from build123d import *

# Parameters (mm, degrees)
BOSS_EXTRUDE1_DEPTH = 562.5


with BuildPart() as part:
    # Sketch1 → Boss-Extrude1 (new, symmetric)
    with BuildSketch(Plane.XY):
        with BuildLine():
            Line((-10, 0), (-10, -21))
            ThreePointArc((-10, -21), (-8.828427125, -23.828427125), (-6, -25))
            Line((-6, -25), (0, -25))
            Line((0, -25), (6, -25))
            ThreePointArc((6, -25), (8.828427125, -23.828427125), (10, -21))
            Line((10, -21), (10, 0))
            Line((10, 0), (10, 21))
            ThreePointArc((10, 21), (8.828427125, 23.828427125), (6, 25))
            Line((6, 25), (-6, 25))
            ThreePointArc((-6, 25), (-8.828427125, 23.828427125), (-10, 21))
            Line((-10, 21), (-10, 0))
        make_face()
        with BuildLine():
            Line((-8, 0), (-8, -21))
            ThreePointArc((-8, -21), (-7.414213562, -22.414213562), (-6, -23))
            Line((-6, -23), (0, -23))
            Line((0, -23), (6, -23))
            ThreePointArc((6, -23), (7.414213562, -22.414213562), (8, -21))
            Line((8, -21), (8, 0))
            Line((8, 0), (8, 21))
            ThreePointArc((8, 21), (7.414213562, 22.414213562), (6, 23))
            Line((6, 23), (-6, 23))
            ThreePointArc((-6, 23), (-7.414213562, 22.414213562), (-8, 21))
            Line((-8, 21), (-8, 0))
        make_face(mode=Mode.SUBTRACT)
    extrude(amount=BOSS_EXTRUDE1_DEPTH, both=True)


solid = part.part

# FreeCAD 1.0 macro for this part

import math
import FreeCAD as App
import Part
import Sketcher

V = App.Vector

doc = App.newDocument("Part")
body = doc.addObject("PartDesign::Body", "Body")

# Sketch on XY plane
sketch1 = doc.addObject("Sketcher::SketchObject", "Sketch")
body.addObject(sketch1)
sketch1.AttachmentSupport = (doc.XY_Plane, [""])
sketch1.MapMode = "FlatFace"
sketch1.addGeometry([
    Part.ArcOfCircle(Part.Circle(V(-6, -21, 0), V(0, 0, 1), 4), math.radians(180), math.radians(270)),  # 0
    Part.LineSegment(V(-6, -25, 0), V(6, -25, 0)),  # 1
    Part.ArcOfCircle(Part.Circle(V(6, -21, 0), V(0, 0, 1), 4), math.radians(-90), math.radians(0)),  # 2
    Part.LineSegment(V(10, -21, 0), V(10, 21, 0)),  # 3
    Part.ArcOfCircle(Part.Circle(V(6, 21, 0), V(0, 0, 1), 4), math.radians(0), math.radians(90)),  # 4
    Part.LineSegment(V(6, 25, 0), V(-6, 25, 0)),  # 5
    Part.ArcOfCircle(Part.Circle(V(-6, 21, 0), V(0, 0, 1), 4), math.radians(90), math.radians(180)),  # 6
    Part.LineSegment(V(-10, 21, 0), V(-10, -21, 0)),  # 7
    Part.ArcOfCircle(Part.Circle(V(-6, -21, 0), V(0, 0, 1), 2), math.radians(-180), math.radians(-90)),  # 8
    Part.LineSegment(V(-8, -21, 0), V(-8, 21, 0)),  # 9
    Part.ArcOfCircle(Part.Circle(V(-6, 21, 0), V(0, 0, 1), 2), math.radians(90), math.radians(180)),  # 10
    Part.LineSegment(V(-6, 23, 0), V(6, 23, 0)),  # 11
    Part.ArcOfCircle(Part.Circle(V(6, 21, 0), V(0, 0, 1), 2), math.radians(0), math.radians(90)),  # 12
    Part.LineSegment(V(8, 21, 0), V(8, -21, 0)),  # 13
    Part.ArcOfCircle(Part.Circle(V(6, -21, 0), V(0, 0, 1), 2), math.radians(-90), math.radians(0)),  # 14
    Part.LineSegment(V(6, -23, 0), V(-6, -23, 0)),  # 15
], False)
sketch1.addConstraint([
    Sketcher.Constraint("Tangent", 0, 2, 1, 1),
    Sketcher.Constraint("Tangent", 1, 2, 2, 1),
    Sketcher.Constraint("Tangent", 2, 2, 3, 1),
    Sketcher.Constraint("Tangent", 3, 2, 4, 1),
    Sketcher.Constraint("Tangent", 4, 2, 5, 1),
    Sketcher.Constraint("Tangent", 5, 2, 6, 1),
    Sketcher.Constraint("Tangent", 6, 2, 7, 1),
    Sketcher.Constraint("Tangent", 7, 2, 0, 1),
    Sketcher.Constraint("Tangent", 8, 1, 9, 1),
    Sketcher.Constraint("Tangent", 9, 2, 10, 2),
    Sketcher.Constraint("Tangent", 10, 1, 11, 1),
    Sketcher.Constraint("Tangent", 11, 2, 12, 2),
    Sketcher.Constraint("Tangent", 12, 1, 13, 1),
    Sketcher.Constraint("Tangent", 13, 2, 14, 2),
    Sketcher.Constraint("Tangent", 14, 1, 15, 1),
    Sketcher.Constraint("Tangent", 15, 2, 8, 2),
    Sketcher.Constraint("Horizontal", 1),
    Sketcher.Constraint("Vertical", 3),
    Sketcher.Constraint("Horizontal", 5),
    Sketcher.Constraint("Vertical", 7),
    Sketcher.Constraint("Vertical", 9),
    Sketcher.Constraint("Horizontal", 11),
    Sketcher.Constraint("Vertical", 13),
    Sketcher.Constraint("Horizontal", 15),
    Sketcher.Constraint("Coincident", 8, 3, 0, 3),
    Sketcher.Constraint("Coincident", 10, 3, 6, 3),
    Sketcher.Constraint("Coincident", 12, 3, 4, 3),
    Sketcher.Constraint("Equal", 0, 2),
    Sketcher.Constraint("Equal", 2, 4),
    Sketcher.Constraint("Equal", 4, 6),
    Sketcher.Constraint("Equal", 12, 14),
    Sketcher.Constraint("Symmetric", 0, 3, 4, 3, -1, 1),
    Sketcher.Constraint("Radius", 0, 4.0),
    Sketcher.Constraint("Radius", 8, 2.0),
    Sketcher.Constraint("DistanceX", 1, 1, 1, 2, 12.0),
    Sketcher.Constraint("DistanceY", 3, 1, 3, 2, 42.0),
])
pad1 = doc.addObject("PartDesign::Pad", "Pad")
body.addObject(pad1)
pad1.Profile = sketch1
pad1.Length = 1125
pad1.Midplane = True

doc.recompute()
